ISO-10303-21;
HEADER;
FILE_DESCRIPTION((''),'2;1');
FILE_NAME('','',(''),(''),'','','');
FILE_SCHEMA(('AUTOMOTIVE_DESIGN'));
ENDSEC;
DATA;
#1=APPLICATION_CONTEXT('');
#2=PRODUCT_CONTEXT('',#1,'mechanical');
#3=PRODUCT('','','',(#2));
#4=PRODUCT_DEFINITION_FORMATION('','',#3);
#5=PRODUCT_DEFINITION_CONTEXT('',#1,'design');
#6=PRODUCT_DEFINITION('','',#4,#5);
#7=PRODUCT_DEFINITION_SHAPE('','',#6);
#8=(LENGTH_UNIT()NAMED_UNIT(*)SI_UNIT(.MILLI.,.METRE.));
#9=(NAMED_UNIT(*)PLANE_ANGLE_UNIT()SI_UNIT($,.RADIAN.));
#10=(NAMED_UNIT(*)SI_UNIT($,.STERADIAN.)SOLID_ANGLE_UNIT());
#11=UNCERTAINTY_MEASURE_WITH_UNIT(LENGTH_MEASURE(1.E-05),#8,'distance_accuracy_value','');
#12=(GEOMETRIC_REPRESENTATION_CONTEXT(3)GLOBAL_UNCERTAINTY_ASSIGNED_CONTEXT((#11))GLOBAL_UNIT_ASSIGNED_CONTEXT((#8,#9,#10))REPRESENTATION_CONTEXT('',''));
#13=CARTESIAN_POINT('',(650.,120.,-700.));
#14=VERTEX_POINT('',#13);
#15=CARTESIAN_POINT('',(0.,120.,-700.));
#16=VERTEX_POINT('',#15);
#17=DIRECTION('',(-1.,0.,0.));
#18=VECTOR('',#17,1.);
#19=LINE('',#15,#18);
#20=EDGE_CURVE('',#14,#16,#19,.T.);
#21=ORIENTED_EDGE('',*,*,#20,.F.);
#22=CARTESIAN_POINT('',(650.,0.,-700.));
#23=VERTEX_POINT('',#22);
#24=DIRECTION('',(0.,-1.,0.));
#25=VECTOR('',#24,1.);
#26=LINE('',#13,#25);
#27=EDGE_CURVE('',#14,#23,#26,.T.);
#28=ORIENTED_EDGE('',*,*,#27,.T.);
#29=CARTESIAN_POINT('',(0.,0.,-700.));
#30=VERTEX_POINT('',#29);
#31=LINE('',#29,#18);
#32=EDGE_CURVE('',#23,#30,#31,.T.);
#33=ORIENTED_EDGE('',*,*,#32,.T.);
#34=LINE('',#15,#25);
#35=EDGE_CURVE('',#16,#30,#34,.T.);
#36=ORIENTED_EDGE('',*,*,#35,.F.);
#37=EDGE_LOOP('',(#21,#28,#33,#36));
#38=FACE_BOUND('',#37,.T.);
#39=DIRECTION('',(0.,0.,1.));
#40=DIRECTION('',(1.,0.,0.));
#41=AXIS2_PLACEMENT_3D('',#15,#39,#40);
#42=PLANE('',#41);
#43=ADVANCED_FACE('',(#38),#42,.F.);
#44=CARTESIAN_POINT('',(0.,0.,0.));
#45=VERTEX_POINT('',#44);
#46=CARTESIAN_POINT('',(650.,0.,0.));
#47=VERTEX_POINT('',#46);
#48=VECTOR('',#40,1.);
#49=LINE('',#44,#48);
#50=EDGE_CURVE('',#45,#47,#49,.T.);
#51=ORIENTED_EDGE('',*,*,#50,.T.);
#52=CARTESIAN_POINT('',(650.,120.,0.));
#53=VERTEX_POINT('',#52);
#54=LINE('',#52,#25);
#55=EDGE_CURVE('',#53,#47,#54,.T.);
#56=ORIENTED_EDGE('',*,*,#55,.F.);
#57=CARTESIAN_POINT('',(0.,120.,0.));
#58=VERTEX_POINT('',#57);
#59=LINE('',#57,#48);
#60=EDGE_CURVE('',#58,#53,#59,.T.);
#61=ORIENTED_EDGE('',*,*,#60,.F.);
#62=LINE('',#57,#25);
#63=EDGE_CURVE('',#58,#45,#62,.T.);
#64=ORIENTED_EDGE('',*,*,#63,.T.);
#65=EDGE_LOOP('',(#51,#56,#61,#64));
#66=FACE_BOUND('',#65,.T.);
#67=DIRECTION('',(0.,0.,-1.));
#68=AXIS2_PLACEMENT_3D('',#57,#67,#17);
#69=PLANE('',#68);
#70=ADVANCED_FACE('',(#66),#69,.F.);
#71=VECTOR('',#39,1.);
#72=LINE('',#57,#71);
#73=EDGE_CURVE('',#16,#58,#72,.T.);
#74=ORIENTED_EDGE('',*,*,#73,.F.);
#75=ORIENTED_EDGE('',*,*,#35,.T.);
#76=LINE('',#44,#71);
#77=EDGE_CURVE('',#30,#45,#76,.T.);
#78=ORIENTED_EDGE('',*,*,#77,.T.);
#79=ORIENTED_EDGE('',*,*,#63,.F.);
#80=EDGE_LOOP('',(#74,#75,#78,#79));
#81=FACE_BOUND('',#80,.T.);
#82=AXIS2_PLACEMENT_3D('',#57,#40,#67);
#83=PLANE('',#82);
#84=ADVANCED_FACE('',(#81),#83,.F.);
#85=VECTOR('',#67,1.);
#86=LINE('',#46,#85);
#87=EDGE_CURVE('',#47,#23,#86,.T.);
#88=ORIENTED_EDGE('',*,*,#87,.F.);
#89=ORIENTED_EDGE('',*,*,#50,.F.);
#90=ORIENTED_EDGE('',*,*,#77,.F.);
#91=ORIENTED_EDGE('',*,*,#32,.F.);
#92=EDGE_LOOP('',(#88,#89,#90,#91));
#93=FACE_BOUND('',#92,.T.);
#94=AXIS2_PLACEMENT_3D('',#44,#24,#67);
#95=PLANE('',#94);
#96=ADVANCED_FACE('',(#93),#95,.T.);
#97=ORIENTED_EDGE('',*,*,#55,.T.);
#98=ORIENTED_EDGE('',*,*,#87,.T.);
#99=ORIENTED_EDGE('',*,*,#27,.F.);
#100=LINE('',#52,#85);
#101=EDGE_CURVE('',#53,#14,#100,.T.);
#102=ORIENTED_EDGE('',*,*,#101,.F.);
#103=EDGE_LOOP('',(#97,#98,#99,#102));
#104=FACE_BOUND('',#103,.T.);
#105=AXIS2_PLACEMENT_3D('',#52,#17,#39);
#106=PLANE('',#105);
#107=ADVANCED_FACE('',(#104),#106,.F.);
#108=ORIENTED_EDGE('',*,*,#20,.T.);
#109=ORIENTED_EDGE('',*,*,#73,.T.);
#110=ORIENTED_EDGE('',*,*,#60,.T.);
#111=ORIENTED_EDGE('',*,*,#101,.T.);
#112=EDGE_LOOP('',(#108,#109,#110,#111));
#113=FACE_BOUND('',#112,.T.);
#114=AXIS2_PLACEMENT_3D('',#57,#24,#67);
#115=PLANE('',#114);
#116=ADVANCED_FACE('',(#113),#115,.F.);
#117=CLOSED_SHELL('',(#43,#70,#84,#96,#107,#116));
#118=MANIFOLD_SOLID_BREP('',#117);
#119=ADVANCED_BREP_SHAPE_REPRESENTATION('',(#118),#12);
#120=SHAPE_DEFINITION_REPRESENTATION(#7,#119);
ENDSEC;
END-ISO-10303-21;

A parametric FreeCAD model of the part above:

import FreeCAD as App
import Part
import Sketcher
Q = App.Units.Quantity


def add_polygon(sketch, points):
    """Adds a closed chain of lines whose ends are joined by coincident constraints."""
    first, n = sketch.GeometryCount, len(points)
    for a, b in zip(points, points[1:] + points[:1]):
        sketch.addGeometry(Part.LineSegment(App.Vector(*a, 0), App.Vector(*b, 0)), False)
    for i in range(n):
        sketch.addConstraint(Sketcher.Constraint("Coincident", first + i, 2, first + (i + 1) % n, 1))

doc = App.newDocument("Part")
body = doc.addObject("PartDesign::Body", "Body")

sketch1 = body.newObject("Sketcher::SketchObject", "Sketch")
sketch1.AttachmentSupport = (doc.getObject("XZ_Plane"), [""])
sketch1.MapMode = "FlatFace"
add_polygon(sketch1, [(0, -700), (0, 0), (650, 0), (650, -700)])
sketch1.addConstraint([
    Sketcher.Constraint("Vertical", 0),
    Sketcher.Constraint("Horizontal", 1),
    Sketcher.Constraint("Vertical", 2),
    Sketcher.Constraint("Horizontal", 3),
    Sketcher.Constraint("Coincident", 0, 2, -1, 1),
    Sketcher.Constraint("DistanceX", 1, 1, 1, 2, Q("650 mm")),
    Sketcher.Constraint("DistanceY", 0, 1, 0, 2, Q("700 mm")),
])
pad1 = body.newObject("PartDesign::Pad", "Pad")
pad1.Profile = sketch1
pad1.Length = 120
pad1.Reversed = True

doc.recompute()
